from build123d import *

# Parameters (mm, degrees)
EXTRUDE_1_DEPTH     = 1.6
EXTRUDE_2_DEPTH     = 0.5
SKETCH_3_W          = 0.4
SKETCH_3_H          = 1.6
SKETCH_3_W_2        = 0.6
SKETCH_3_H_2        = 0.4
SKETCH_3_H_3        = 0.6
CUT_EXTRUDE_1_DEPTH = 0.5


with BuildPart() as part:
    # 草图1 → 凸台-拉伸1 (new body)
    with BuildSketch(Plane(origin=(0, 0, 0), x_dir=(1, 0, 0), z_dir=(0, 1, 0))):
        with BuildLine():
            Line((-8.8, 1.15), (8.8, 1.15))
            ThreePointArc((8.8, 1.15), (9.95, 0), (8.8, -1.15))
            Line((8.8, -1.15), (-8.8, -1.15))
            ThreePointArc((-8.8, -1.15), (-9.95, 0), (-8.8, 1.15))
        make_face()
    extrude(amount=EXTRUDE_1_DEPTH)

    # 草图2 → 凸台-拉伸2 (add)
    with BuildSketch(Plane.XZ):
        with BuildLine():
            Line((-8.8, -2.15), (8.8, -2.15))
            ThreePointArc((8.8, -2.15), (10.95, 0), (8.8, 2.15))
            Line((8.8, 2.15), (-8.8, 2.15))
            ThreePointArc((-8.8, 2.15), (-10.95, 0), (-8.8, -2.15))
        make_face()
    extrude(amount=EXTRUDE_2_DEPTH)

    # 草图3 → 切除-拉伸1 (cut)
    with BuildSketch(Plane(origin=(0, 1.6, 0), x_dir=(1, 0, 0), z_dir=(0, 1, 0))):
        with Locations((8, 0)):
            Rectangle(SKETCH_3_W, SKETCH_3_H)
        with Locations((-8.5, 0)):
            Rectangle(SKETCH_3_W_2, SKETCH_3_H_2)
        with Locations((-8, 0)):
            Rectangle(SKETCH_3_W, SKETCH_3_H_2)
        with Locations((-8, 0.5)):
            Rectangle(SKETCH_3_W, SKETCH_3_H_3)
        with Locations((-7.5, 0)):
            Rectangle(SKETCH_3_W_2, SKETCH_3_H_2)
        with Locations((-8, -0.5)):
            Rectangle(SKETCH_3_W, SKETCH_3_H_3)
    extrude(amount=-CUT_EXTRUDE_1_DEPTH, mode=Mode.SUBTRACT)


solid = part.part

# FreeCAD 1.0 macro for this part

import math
import FreeCAD as App
import Part
import Sketcher

V = App.Vector
Q = App.Units.Quantity

doc = App.newDocument("Part")
params = doc.addObject("Spreadsheet::Sheet", "Params")
for row, (alias, value) in enumerate([
    ("sketch1_radius", "1.15 mm"),
    ("sketch1_width", "17.6 mm"),
    ("pad1_length", "1.6 mm"),
    ("sketch2_radius", "2.15 mm"),
    ("sketch2_width", "17.6 mm"),
    ("pad2_length", "0.5 mm"),
    ("sketch3_width", "0.4 mm"),
    ("sketch3_width2", "0.6 mm"),
    ("pocket1_length", "0.5 mm"),
], start=1):
    params.set(f"A{row}", alias)
    params.set(f"B{row}", "=" + value)
    params.setAlias(f"B{row}", alias)

body = doc.addObject("PartDesign::Body", "Body")

sketch1 = doc.addObject("Sketcher::SketchObject", "Sketch")
body.addObject(sketch1)
sketch1.AttachmentSupport = (doc.XZ_Plane, [""])
sketch1.MapMode = "FlatFace"
sketch1.addGeometry(Part.LineSegment(V(8.8, -1.1, 0), V(-8.8, -1.1, 0)), False)
sketch1.addGeometry(Part.ArcOfCircle(Part.Circle(V(-8.8, 0, 0), V(0, 0, 1), 1.1), math.radians(90), math.radians(270)), False)
sketch1.addGeometry(Part.LineSegment(V(-8.8, 1.1, 0), V(8.8, 1.1, 0)), False)
sketch1.addGeometry(Part.ArcOfCircle(Part.Circle(V(8.8, 0, 0), V(0, 0, 1), 1.1), math.radians(-90), math.radians(90)), False)
sketch1.addConstraint(Sketcher.Constraint("Tangent", 0, 2, 1, 2))
sketch1.addConstraint(Sketcher.Constraint("Tangent", 1, 1, 2, 1))
sketch1.addConstraint(Sketcher.Constraint("Tangent", 2, 2, 3, 2))
sketch1.addConstraint(Sketcher.Constraint("Tangent", 3, 1, 0, 1))
sketch1.addConstraint(Sketcher.Constraint("Horizontal", 0))
sketch1.addConstraint(Sketcher.Constraint("Horizontal", 2))
sketch1.addConstraint(Sketcher.Constraint("Symmetric", 1, 3, 3, 3, -1, 1))
sketch1.addConstraint(Sketcher.Constraint("Radius", 1, Q("1.15 mm")))
sketch1.addConstraint(Sketcher.Constraint("DistanceX", 0, 2, 0, 1, Q("17.6 mm")))
sketch1.setExpression("Constraints[7]", "Params.sketch1_radius")
sketch1.setExpression("Constraints[8]", "Params.sketch1_width")
pad1 = doc.addObject("PartDesign::Pad", "Pad")
body.addObject(pad1)
pad1.Profile = sketch1
pad1.setExpression("Length", "Params.pad1_length")
pad1.Reversed = True

sketch2 = doc.addObject("Sketcher::SketchObject", "Sketch001")
body.addObject(sketch2)
sketch2.AttachmentSupport = (doc.XZ_Plane, [""])
sketch2.MapMode = "FlatFace"
sketch2.addGeometry(Part.LineSegment(V(-8.8, -2.1, 0), V(8.8, -2.1, 0)), False)
sketch2.addGeometry(Part.ArcOfCircle(Part.Circle(V(8.8, 0, 0), V(0, 0, 1), 2.1), math.radians(-90), math.radians(90)), False)
sketch2.addGeometry(Part.LineSegment(V(8.8, 2.1, 0), V(-8.8, 2.1, 0)), False)
sketch2.addGeometry(Part.ArcOfCircle(Part.Circle(V(-8.8, 0, 0), V(0, 0, 1), 2.1), math.radians(90), math.radians(270)), False)
sketch2.addConstraint(Sketcher.Constraint("Tangent", 0, 2, 1, 1))
sketch2.addConstraint(Sketcher.Constraint("Tangent", 1, 2, 2, 1))
sketch2.addConstraint(Sketcher.Constraint("Tangent", 2, 2, 3, 1))
sketch2.addConstraint(Sketcher.Constraint("Tangent", 3, 2, 0, 1))
sketch2.addConstraint(Sketcher.Constraint("Horizontal", 0))
sketch2.addConstraint(Sketcher.Constraint("Horizontal", 2))
sketch2.addConstraint(Sketcher.Constraint("Symmetric", 1, 3, 3, 3, -1, 1))
sketch2.addConstraint(Sketcher.Constraint("Radius", 1, Q("2.15 mm")))
sketch2.addConstraint(Sketcher.Constraint("DistanceX", 0, 1, 0, 2, Q("17.6 mm")))
sketch2.setExpression("Constraints[7]", "Params.sketch2_radius")
sketch2.setExpression("Constraints[8]", "Params.sketch2_width")
pad2 = doc.addObject("PartDesign::Pad", "Pad001")
body.addObject(pad2)
pad2.Profile = sketch2
pad2.setExpression("Length", "Params.pad2_length")

sketch3 = doc.addObject("Sketcher::SketchObject", "Sketch002")
body.addObject(sketch3)
sketch3.AttachmentSupport = (doc.XZ_Plane, [""])
sketch3.MapMode = "FlatFace"
sketch3.AttachmentOffset = App.Placement(V(0, 0, -1.6), App.Rotation())
sketch3.addGeometry(Part.LineSegment(V(7.8, -0.8, 0), V(7.8, 0.8, 0)), False)
sketch3.addGeometry(Part.LineSegment(V(7.8, 0.8, 0), V(8.2, 0.8, 0)), False)
sketch3.addGeometry(Part.LineSegment(V(8.2, 0.8, 0), V(8.2, -0.8, 0)), False)
sketch3.addGeometry(Part.LineSegment(V(8.2, -0.8, 0), V(7.8, -0.8, 0)), False)
sketch3.addGeometry(Part.LineSegment(V(-8.8, -0.2, 0), V(-8.8, 0.2, 0)), False)
sketch3.addGeometry(Part.LineSegment(V(-8.8, 0.2, 0), V(-8.2, 0.2, 0)), False)
sketch3.addGeometry(Part.LineSegment(V(-8.2, 0.2, 0), V(-8.2, 0.8, 0)), False)
sketch3.addGeometry(Part.LineSegment(V(-8.2, 0.8, 0), V(-7.8, 0.8, 0)), False)
sketch3.addGeometry(Part.LineSegment(V(-7.8, 0.8, 0), V(-7.8, 0.2, 0)), False)
sketch3.addGeometry(Part.LineSegment(V(-7.8, 0.2, 0), V(-7.2, 0.2, 0)), False)
sketch3.addGeometry(Part.LineSegment(V(-7.2, 0.2, 0), V(-7.2, -0.2, 0)), False)
sketch3.addGeometry(Part.LineSegment(V(-7.2, -0.2, 0), V(-7.8, -0.2, 0)), False)
sketch3.addGeometry(Part.LineSegment(V(-7.8, -0.2, 0), V(-7.8, -0.8, 0)), False)
sketch3.addGeometry(Part.LineSegment(V(-7.8, -0.8, 0), V(-8.2, -0.8, 0)), False)
sketch3.addGeometry(Part.LineSegment(V(-8.2, -0.8, 0), V(-8.2, -0.2, 0)), False)
sketch3.addGeometry(Part.LineSegment(V(-8.2, -0.2, 0), V(-8.8, -0.2, 0)), False)
sketch3.addConstraint(Sketcher.Constraint("Coincident", 0, 2, 1, 1))
sketch3.addConstraint(Sketcher.Constraint("Coincident", 1, 2, 2, 1))
sketch3.addConstraint(Sketcher.Constraint("Coincident", 2, 2, 3, 1))
sketch3.addConstraint(Sketcher.Constraint("Coincident", 3, 2, 0, 1))
sketch3.addConstraint(Sketcher.Constraint("Coincident", 4, 2, 5, 1))
sketch3.addConstraint(Sketcher.Constraint("Coincident", 5, 2, 6, 1))
sketch3.addConstraint(Sketcher.Constraint("Coincident", 6, 2, 7, 1))
sketch3.addConstraint(Sketcher.Constraint("Coincident", 7, 2, 8, 1))
sketch3.addConstraint(Sketcher.Constraint("Coincident", 8, 2, 9, 1))
sketch3.addConstraint(Sketcher.Constraint("Coincident", 9, 2, 10, 1))
sketch3.addConstraint(Sketcher.Constraint("Coincident", 10, 2, 11, 1))
sketch3.addConstraint(Sketcher.Constraint("Coincident", 11, 2, 12, 1))
sketch3.addConstraint(Sketcher.Constraint("Coincident", 12, 2, 13, 1))
sketch3.addConstraint(Sketcher.Constraint("Coincident", 13, 2, 14, 1))
sketch3.addConstraint(Sketcher.Constraint("Coincident", 14, 2, 15, 1))
sketch3.addConstraint(Sketcher.Constraint("Coincident", 15, 2, 4, 1))
sketch3.addConstraint(Sketcher.Constraint("Vertical", 0))
sketch3.addConstraint(Sketcher.Constraint("Horizontal", 1))
sketch3.addConstraint(Sketcher.Constraint("Vertical", 2))
sketch3.addConstraint(Sketcher.Constraint("Horizontal", 3))
sketch3.addConstraint(Sketcher.Constraint("Vertical", 4))
sketch3.addConstraint(Sketcher.Constraint("Horizontal", 5))
sketch3.addConstraint(Sketcher.Constraint("Vertical", 6))
sketch3.addConstraint(Sketcher.Constraint("Horizontal", 7))
sketch3.addConstraint(Sketcher.Constraint("Vertical", 8))
sketch3.addConstraint(Sketcher.Constraint("Horizontal", 9))
sketch3.addConstraint(Sketcher.Constraint("Vertical", 10))
sketch3.addConstraint(Sketcher.Constraint("Horizontal", 11))
sketch3.addConstraint(Sketcher.Constraint("Vertical", 12))
sketch3.addConstraint(Sketcher.Constraint("Horizontal", 13))
sketch3.addConstraint(Sketcher.Constraint("Vertical", 14))
sketch3.addConstraint(Sketcher.Constraint("Horizontal", 15))
sketch3.addConstraint(Sketcher.Constraint("Symmetric", 2, 2, 6, 2, -1, 1))
sketch3.addConstraint(Sketcher.Constraint("Symmetric", 0, 2, 12, 2, -1, 1))
sketch3.addConstraint(Sketcher.Constraint("Symmetric", 0, 2, 7, 2, -2))
sketch3.addConstraint(Sketcher.Constraint("Symmetric", 5, 2, 14, 2, -1))
sketch3.addConstraint(Sketcher.Constraint("Horizontal", 5, 2, 8, 2))
sketch3.addConstraint(Sketcher.Constraint("Horizontal", 11, 2, 14, 2))
sketch3.addConstraint(Sketcher.Constraint("Equal", 5, 9))
sketch3.addConstraint(Sketcher.Constraint("Equal", 13, 4))
sketch3.addConstraint(Sketcher.Constraint("Equal", 15, 6))
sketch3.addConstraint(Sketcher.Constraint("DistanceX", 1, 1, 1, 2, Q("0.4 mm")))
sketch3.addConstraint(Sketcher.Constraint("DistanceX", 5, 1, 5, 2, Q("0.6 mm")))
sketch3.addConstraint(Sketcher.Constraint("DistanceX", 4, 2, 1, 2, Q("17 mm")))
sketch3.setExpression("Constraints[41]", "Params.sketch3_width")
sketch3.setExpression("Constraints[42]", "Params.sketch3_width2")
pocket1 = doc.addObject("PartDesign::Pocket", "Pocket")
body.addObject(pocket1)
pocket1.Profile = sketch3
pocket1.setExpression("Length", "Params.pocket1_length")
pocket1.Reversed = True

doc.recompute()
